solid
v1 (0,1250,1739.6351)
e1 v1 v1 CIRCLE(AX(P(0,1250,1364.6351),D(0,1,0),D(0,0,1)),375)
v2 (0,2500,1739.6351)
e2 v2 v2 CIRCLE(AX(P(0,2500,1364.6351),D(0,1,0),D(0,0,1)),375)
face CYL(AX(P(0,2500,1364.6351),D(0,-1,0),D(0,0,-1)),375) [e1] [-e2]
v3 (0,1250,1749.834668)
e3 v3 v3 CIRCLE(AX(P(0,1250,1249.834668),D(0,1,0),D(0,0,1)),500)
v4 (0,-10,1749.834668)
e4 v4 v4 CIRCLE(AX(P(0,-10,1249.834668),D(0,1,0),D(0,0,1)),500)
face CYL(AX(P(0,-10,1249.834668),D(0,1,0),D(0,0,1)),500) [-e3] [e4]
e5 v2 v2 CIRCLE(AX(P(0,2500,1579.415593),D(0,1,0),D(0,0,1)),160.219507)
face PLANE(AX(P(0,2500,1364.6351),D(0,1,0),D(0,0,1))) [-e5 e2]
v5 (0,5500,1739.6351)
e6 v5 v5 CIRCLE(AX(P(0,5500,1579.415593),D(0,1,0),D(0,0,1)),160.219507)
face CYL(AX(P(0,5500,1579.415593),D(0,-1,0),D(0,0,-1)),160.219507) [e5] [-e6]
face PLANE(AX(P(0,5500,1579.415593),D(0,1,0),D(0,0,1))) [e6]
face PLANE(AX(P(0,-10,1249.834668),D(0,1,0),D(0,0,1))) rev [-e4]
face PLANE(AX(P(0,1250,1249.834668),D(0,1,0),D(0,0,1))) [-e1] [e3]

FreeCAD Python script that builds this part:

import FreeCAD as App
import Part
import Sketcher
from FreeCAD import Vector
Q = App.Units.Quantity

doc = App.newDocument("Part")
params = doc.addObject("Spreadsheet::Sheet", "Params")
for row, (alias, value) in enumerate([
    ("sketch1_diameter", "1000 mm"),
    ("pad1_length", "1250 mm"),
    ("pad1_length2", "10 mm"),
    ("sketch2_diameter", "750 mm"),
    ("pad2_length", "1250 mm"),
    ("pad3_length", "3000 mm"),
], start=1):
    params.set(f"A{row}", alias)
    params.set(f"B{row}", "=" + value)
    params.setAlias(f"B{row}", alias)

body = doc.addObject("PartDesign::Body", "Body")

# Sketch on XZ plane
sketch1 = body.newObject("Sketcher::SketchObject", "Sketch")
sketch1.AttachmentSupport = (doc.getObject("XZ_Plane"), [""])
sketch1.MapMode = "FlatFace"
sketch1.addGeometry(Part.Circle(Vector(0, 1250, 0), Vector(0, 0, 1), 500), False)
sketch1.addConstraint([
    Sketcher.Constraint("PointOnObject", 0, 3, -2),
    Sketcher.Constraint("Diameter", 0, Q("1000 mm")),
    Sketcher.Constraint("DistanceY", -1, 1, 0, 3, Q("1249.834668 mm")),
])
sketch1.setExpression("Constraints[1]", "Params.sketch1_diameter")
pad1 = body.newObject("PartDesign::Pad", "Pad")
pad1.Profile = sketch1
pad1.Type = "TwoLengths"
pad1.setExpression("Length", "Params.pad1_length")
pad1.setExpression("Length2", "Params.pad1_length2")
pad1.Reversed = True

# Sketch on XZ plane
sketch2 = body.newObject("Sketcher::SketchObject", "Sketch001")
sketch2.AttachmentSupport = (doc.getObject("XZ_Plane"), [""])
sketch2.MapMode = "FlatFace"
sketch2.AttachmentOffset = App.Placement(Vector(0, 0, -1250), App.Rotation())
sketch2.addGeometry(Part.Circle(Vector(0, 1365, 0), Vector(0, 0, 1), 375), False)
sketch2.addConstraint([
    Sketcher.Constraint("PointOnObject", 0, 3, -2),
    Sketcher.Constraint("Diameter", 0, Q("750 mm")),
    Sketcher.Constraint("DistanceY", -1, 1, 0, 3, Q("1364.6351 mm")),
])
sketch2.setExpression("Constraints[1]", "Params.sketch2_diameter")
pad2 = body.newObject("PartDesign::Pad", "Pad001")
pad2.Profile = sketch2
pad2.setExpression("Length", "Params.pad2_length")
pad2.Reversed = True

# Sketch on XZ plane
sketch3 = body.newObject("Sketcher::SketchObject", "Sketch002")
sketch3.AttachmentSupport = (doc.getObject("XZ_Plane"), [""])
sketch3.MapMode = "FlatFace"
sketch3.AttachmentOffset = App.Placement(Vector(0, 0, -2500), App.Rotation())
sketch3.addGeometry(Part.Circle(Vector(0, 1579, 0), Vector(0, 0, 1), 160), False)
sketch3.addConstraint([
    Sketcher.Constraint("PointOnObject", 0, 3, -2),
    Sketcher.Constraint("Diameter", 0, Q("320.439013 mm")),
    Sketcher.Constraint("DistanceY", -1, 1, 0, 3, Q("1579.415593 mm")),
])
pad3 = body.newObject("PartDesign::Pad", "Pad002")
pad3.Profile = sketch3
pad3.setExpression("Length", "Params.pad3_length")
pad3.Reversed = True

doc.recompute()
